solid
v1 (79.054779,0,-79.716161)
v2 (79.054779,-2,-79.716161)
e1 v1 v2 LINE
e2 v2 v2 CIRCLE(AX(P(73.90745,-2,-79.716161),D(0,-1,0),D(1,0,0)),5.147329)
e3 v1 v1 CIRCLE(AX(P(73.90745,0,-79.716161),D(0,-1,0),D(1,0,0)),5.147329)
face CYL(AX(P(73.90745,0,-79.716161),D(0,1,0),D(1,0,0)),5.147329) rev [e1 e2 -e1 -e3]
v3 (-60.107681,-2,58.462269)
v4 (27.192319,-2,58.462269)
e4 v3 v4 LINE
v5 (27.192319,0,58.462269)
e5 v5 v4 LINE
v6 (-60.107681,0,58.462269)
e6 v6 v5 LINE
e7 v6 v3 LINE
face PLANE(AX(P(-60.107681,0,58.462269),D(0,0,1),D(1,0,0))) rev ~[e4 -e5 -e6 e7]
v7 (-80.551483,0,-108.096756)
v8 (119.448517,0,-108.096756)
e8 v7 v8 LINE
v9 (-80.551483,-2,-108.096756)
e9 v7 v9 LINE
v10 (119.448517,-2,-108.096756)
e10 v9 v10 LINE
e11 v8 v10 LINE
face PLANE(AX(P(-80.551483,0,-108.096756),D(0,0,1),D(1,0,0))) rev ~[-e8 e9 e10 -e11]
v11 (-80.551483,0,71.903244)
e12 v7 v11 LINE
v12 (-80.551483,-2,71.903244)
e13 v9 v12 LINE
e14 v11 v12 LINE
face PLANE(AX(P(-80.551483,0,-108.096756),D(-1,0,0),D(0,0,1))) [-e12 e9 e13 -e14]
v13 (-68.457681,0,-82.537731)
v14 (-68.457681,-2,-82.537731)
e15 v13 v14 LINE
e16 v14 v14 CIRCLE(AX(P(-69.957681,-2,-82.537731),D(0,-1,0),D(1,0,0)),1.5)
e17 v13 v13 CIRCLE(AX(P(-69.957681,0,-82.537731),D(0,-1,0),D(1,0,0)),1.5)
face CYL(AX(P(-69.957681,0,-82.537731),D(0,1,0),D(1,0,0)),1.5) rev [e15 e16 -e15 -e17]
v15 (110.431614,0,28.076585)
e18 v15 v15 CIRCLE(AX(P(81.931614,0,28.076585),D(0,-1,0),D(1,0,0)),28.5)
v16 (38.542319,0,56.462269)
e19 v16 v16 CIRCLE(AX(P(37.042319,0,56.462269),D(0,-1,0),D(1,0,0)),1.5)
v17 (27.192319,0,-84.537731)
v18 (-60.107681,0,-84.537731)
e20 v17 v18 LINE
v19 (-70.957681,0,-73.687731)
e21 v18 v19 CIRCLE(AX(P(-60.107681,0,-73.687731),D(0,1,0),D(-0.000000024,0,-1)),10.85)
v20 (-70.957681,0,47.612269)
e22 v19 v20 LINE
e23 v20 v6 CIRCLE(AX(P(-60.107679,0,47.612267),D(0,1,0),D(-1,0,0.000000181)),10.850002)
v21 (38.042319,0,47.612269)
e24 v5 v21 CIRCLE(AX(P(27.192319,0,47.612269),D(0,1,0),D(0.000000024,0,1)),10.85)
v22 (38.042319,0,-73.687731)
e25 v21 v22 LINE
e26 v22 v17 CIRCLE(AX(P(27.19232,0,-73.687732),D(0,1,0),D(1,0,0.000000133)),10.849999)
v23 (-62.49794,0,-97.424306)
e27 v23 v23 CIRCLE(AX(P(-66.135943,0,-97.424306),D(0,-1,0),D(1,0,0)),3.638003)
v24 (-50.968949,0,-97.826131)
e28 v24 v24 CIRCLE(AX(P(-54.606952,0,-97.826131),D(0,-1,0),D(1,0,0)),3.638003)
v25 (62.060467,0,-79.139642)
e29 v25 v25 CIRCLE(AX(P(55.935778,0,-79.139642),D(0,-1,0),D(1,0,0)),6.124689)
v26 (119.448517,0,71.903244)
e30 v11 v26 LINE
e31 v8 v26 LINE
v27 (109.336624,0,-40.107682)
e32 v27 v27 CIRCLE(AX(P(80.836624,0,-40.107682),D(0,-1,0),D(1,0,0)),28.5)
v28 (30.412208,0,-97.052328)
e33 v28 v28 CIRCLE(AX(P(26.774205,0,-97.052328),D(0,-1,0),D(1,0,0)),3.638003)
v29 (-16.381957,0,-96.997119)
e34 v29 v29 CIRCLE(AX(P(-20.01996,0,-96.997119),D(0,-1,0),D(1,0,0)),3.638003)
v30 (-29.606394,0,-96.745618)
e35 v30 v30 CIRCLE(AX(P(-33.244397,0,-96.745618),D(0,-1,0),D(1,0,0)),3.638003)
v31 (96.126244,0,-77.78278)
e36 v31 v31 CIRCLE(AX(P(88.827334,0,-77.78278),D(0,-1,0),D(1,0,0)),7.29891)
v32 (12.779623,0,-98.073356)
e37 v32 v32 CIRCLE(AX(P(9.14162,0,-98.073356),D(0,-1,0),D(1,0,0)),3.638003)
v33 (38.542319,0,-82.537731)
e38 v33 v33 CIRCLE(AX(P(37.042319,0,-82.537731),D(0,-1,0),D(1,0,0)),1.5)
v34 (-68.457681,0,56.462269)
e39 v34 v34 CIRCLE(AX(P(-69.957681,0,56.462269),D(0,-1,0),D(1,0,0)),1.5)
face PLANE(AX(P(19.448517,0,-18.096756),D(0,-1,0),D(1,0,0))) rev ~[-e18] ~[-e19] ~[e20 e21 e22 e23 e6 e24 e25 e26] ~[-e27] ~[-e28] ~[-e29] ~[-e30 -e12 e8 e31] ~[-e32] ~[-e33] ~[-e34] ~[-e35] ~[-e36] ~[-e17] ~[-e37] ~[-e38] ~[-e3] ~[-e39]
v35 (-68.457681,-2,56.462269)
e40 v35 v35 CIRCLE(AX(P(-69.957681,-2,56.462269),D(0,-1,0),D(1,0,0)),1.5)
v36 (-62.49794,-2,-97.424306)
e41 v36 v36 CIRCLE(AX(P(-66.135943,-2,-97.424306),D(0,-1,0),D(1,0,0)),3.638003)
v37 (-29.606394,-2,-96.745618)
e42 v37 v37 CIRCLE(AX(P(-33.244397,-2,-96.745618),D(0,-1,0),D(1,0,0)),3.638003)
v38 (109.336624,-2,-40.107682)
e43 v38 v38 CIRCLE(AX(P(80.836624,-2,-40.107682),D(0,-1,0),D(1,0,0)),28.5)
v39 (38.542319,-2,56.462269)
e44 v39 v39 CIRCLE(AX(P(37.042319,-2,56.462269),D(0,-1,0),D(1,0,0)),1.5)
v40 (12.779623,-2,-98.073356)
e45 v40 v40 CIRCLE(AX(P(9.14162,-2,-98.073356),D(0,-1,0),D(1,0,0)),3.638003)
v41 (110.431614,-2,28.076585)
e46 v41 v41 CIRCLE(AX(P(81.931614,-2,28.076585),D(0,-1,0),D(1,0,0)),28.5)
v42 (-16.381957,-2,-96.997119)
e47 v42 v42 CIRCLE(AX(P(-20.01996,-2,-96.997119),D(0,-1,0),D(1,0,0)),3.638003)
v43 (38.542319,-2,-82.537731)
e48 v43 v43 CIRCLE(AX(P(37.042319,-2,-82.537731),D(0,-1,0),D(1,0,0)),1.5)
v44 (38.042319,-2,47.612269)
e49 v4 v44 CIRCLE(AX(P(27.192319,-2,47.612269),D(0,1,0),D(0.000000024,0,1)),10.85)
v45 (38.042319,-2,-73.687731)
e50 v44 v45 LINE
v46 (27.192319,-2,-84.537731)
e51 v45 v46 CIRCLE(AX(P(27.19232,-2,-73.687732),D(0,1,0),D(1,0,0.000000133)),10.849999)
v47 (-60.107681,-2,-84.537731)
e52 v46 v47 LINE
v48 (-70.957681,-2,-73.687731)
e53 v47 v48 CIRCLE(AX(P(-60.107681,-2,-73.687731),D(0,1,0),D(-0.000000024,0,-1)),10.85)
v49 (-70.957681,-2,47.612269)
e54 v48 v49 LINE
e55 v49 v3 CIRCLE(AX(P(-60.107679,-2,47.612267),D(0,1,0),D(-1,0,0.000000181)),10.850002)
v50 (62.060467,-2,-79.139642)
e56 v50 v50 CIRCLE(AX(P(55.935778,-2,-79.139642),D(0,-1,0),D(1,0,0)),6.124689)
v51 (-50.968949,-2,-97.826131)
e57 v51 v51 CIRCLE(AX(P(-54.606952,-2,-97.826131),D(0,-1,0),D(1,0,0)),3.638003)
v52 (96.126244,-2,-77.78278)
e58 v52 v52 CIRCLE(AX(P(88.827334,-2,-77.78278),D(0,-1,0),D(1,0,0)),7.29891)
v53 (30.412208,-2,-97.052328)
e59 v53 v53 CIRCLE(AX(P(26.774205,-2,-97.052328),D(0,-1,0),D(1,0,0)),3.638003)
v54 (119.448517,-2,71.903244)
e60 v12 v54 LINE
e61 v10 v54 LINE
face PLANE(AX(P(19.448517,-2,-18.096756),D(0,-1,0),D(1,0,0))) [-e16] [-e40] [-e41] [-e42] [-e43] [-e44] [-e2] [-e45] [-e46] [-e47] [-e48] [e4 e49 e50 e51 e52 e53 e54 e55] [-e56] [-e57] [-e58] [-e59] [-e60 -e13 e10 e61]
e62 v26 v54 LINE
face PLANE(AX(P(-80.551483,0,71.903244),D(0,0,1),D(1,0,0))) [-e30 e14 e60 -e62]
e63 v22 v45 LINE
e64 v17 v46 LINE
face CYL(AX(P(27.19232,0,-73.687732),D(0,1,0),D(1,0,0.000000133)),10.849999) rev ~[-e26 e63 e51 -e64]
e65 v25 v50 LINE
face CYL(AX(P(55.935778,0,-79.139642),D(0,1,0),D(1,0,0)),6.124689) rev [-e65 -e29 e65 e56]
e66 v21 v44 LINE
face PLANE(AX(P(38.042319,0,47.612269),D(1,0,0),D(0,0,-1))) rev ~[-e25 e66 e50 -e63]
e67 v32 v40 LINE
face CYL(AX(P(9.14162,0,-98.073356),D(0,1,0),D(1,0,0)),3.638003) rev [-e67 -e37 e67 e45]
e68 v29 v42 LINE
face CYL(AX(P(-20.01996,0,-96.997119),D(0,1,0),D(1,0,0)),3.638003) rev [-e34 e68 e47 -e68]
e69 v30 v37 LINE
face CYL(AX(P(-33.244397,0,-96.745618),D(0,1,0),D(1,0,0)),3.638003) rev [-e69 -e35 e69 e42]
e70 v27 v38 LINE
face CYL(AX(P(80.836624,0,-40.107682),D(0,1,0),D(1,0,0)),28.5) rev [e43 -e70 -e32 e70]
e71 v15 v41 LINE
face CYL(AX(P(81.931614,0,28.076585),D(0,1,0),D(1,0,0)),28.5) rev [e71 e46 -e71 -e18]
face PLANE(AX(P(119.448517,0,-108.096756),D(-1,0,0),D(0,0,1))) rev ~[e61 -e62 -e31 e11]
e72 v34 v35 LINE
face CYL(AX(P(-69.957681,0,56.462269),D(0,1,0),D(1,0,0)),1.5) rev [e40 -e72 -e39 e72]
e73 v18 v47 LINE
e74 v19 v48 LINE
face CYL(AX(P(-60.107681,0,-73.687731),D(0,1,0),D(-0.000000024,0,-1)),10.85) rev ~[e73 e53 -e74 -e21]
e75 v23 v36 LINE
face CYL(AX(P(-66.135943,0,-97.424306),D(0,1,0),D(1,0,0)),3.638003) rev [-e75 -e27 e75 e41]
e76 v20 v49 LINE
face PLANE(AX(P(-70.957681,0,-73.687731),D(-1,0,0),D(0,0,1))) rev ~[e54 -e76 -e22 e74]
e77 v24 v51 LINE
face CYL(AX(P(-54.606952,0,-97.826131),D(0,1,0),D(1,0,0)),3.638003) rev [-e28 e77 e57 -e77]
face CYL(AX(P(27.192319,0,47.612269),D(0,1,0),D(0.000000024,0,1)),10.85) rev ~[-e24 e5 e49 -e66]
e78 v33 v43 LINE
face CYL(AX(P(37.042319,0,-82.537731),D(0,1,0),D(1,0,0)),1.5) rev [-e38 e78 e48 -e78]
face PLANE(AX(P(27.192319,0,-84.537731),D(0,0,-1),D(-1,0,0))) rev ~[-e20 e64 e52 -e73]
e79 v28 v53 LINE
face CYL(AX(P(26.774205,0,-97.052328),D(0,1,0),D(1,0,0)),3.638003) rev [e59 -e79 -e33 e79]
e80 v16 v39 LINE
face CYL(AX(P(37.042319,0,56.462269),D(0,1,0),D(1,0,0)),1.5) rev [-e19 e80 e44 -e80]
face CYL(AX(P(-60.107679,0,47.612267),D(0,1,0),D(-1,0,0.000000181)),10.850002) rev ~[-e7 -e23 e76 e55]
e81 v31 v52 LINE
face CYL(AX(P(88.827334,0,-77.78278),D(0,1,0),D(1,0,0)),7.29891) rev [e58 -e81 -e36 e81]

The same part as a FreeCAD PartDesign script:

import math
import FreeCAD as App
import Part
import Sketcher

V = App.Vector
Q = App.Units.Quantity


def add_polygon(sketch, points):
    """Adds a closed chain of lines whose ends are joined by coincident constraints."""
    first, n = sketch.GeometryCount, len(points)
    for a, b in zip(points, points[1:] + points[:1]):
        sketch.addGeometry(Part.LineSegment(App.Vector(*a, 0), App.Vector(*b, 0)), False)
    for i in range(n):
        sketch.addConstraint(Sketcher.Constraint("Coincident", first + i, 2, first + (i + 1) % n, 1))

doc = App.newDocument("Part")
body = doc.addObject("PartDesign::Body", "Body")

# Sketch on XZ plane
sketch1 = doc.addObject("Sketcher::SketchObject", "Sketch")
body.addObject(sketch1)
sketch1.AttachmentSupport = (doc.XZ_Plane, [""])
sketch1.MapMode = "FlatFace"
add_polygon(sketch1, [(-80.6, 71.9), (-80.6, -108.1), (119.4, -108.1), (119.4, 71.9)])  # lines 0-3
sketch1.addGeometry(Part.Circle(V(-66.1, -97.4, 0), V(0, 0, 1), 3.6), False)  # 4
sketch1.addGeometry(Part.Circle(V(-54.6, -97.8, 0), V(0, 0, 1), 3.6), False)  # 5
sketch1.addGeometry(Part.Circle(V(-70, -82.5, 0), V(0, 0, 1), 1.5), False)  # 6
sketch1.addGeometry(Part.Circle(V(-33.2, -96.7, 0), V(0, 0, 1), 3.6), False)  # 7
sketch1.addGeometry(Part.Circle(V(-20, -97, 0), V(0, 0, 1), 3.6), False)  # 8
sketch1.addGeometry(Part.Circle(V(9.1, -98.1, 0), V(0, 0, 1), 3.6), False)  # 9
sketch1.addGeometry(Part.Circle(V(26.8, -97.1, 0), V(0, 0, 1), 3.6), False)  # 10
sketch1.addGeometry(Part.Circle(V(37, -82.5, 0), V(0, 0, 1), 1.5), False)  # 11
sketch1.addGeometry(Part.Circle(V(55.9, -79.1, 0), V(0, 0, 1), 6.1), False)  # 12
sketch1.addGeometry(Part.Circle(V(73.9, -79.7, 0), V(0, 0, 1), 5.1), False)  # 13
sketch1.addGeometry(Part.Circle(V(88.8, -77.8, 0), V(0, 0, 1), 7.3), False)  # 14
sketch1.addGeometry(Part.Circle(V(80.8, -40.1, 0), V(0, 0, 1), 28.5), False)  # 15
sketch1.addGeometry(Part.LineSegment(V(-71, -73.7, 0), V(-71, 47.6, 0)), False)  # 16
sketch1.addGeometry(Part.ArcOfCircle(Part.Circle(V(-60.1, 47.6, 0), V(0, 0, 1), 10.9), math.radians(90), math.radians(180)), False)  # 17
sketch1.addGeometry(Part.LineSegment(V(-60.1, 58.5, 0), V(27.2, 58.5, 0)), False)  # 18
sketch1.addGeometry(Part.ArcOfCircle(Part.Circle(V(27.2, 47.6, 0), V(0, 0, 1), 10.9), math.radians(0), math.radians(90)), False)  # 19
sketch1.addGeometry(Part.LineSegment(V(38, 47.6, 0), V(38, -73.7, 0)), False)  # 20
sketch1.addGeometry(Part.ArcOfCircle(Part.Circle(V(27.2, -73.7, 0), V(0, 0, 1), 10.8), math.radians(-90), math.radians(0)), False)  # 21
sketch1.addGeometry(Part.LineSegment(V(27.2, -84.5, 0), V(-60.1, -84.5, 0)), False)  # 22
sketch1.addGeometry(Part.ArcOfCircle(Part.Circle(V(-60.1, -73.7, 0), V(0, 0, 1), 10.9), math.radians(-180), math.radians(-90)), False)  # 23
sketch1.addGeometry(Part.Circle(V(-70, 56.5, 0), V(0, 0, 1), 1.5), False)  # 24
sketch1.addGeometry(Part.Circle(V(37, 56.5, 0), V(0, 0, 1), 1.5), False)  # 25
sketch1.addGeometry(Part.Circle(V(81.9, 28.1, 0), V(0, 0, 1), 28.5), False)  # 26
sketch1.addConstraint(Sketcher.Constraint("Tangent", 16, 2, 17, 2))
sketch1.addConstraint(Sketcher.Constraint("Tangent", 17, 1, 18, 1))
sketch1.addConstraint(Sketcher.Constraint("Tangent", 18, 2, 19, 2))
sketch1.addConstraint(Sketcher.Constraint("Tangent", 19, 1, 20, 1))
sketch1.addConstraint(Sketcher.Constraint("Tangent", 20, 2, 21, 2))
sketch1.addConstraint(Sketcher.Constraint("Tangent", 21, 1, 22, 1))
sketch1.addConstraint(Sketcher.Constraint("Tangent", 22, 2, 23, 2))
sketch1.addConstraint(Sketcher.Constraint("Tangent", 23, 1, 16, 1))
sketch1.addConstraint(Sketcher.Constraint("Vertical", 0))
sketch1.addConstraint(Sketcher.Constraint("Horizontal", 1))
sketch1.addConstraint(Sketcher.Constraint("Vertical", 2))
sketch1.addConstraint(Sketcher.Constraint("Horizontal", 3))
sketch1.addConstraint(Sketcher.Constraint("Vertical", 16))
sketch1.addConstraint(Sketcher.Constraint("Horizontal", 18))
sketch1.addConstraint(Sketcher.Constraint("Vertical", 20))
sketch1.addConstraint(Sketcher.Constraint("Horizontal", 22))
sketch1.addConstraint(Sketcher.Constraint("Equal", 4, 5))
sketch1.addConstraint(Sketcher.Constraint("Equal", 5, 7))
sketch1.addConstraint(Sketcher.Constraint("Equal", 7, 8))
sketch1.addConstraint(Sketcher.Constraint("Equal", 8, 9))
sketch1.addConstraint(Sketcher.Constraint("Equal", 9, 10))
sketch1.addConstraint(Sketcher.Constraint("Equal", 6, 11))
sketch1.addConstraint(Sketcher.Constraint("Equal", 17, 19))
sketch1.addConstraint(Sketcher.Constraint("Equal", 19, 21))
sketch1.addConstraint(Sketcher.Constraint("Equal", 21, 23))
sketch1.addConstraint(Sketcher.Constraint("Equal", 11, 24))
sketch1.addConstraint(Sketcher.Constraint("Equal", 24, 25))
sketch1.addConstraint(Sketcher.Constraint("Equal", 15, 26))
sketch1.addConstraint(Sketcher.Constraint("Horizontal", 6, 3, 11, 3))
sketch1.addConstraint(Sketcher.Constraint("Horizontal", 24, 3, 25, 3))
sketch1.addConstraint(Sketcher.Constraint("Vertical", 6, 3, 24, 3))
sketch1.addConstraint(Sketcher.Constraint("Vertical", 11, 3, 25, 3))
sketch1.addConstraint(Sketcher.Constraint("Diameter", 6, Q("3 mm")))
sketch1.addConstraint(Sketcher.Constraint("Diameter", 15, Q("57 mm")))
sketch1.addConstraint(Sketcher.Constraint("DistanceX", 1, 1, 1, 2, Q("200 mm")))
sketch1.addConstraint(Sketcher.Constraint("DistanceY", 0, 2, 0, 1, Q("180 mm")))
sketch1.addConstraint(Sketcher.Constraint("Radius", 17, Q("10.850002 mm")))
sketch1.addConstraint(Sketcher.Constraint("DistanceX", 18, 1, 18, 2, Q("87.3 mm")))
sketch1.addConstraint(Sketcher.Constraint("DistanceY", 16, 1, 16, 2, Q("121.3 mm")))
sketch1.addConstraint(Sketcher.Constraint("DistanceY", 6, 3, 24, 3, Q("139 mm")))
sketch1.addConstraint(Sketcher.Constraint("DistanceX", 24, 3, 25, 3, Q("107 mm")))
sketch1.addConstraint(Sketcher.Constraint("DistanceX", 16, 2, 24, 3, Q("1 mm")))
sketch1.addConstraint(Sketcher.Constraint("DistanceY", 24, 3, 17, 1, Q("2 mm")))
sketch1.addConstraint(Sketcher.Constraint("Diameter", 14, Q("14.59782 mm")))
sketch1.addConstraint(Sketcher.Constraint("Diameter", 4, Q("7.276006 mm")))
sketch1.addConstraint(Sketcher.Constraint("Diameter", 12, Q("12.249378 mm")))
sketch1.addConstraint(Sketcher.Constraint("Diameter", 13, Q("10.294658 mm")))
sketch1.addConstraint(Sketcher.Constraint("DistanceY", 5, 3, 6, 3, Q("15.2884 mm")))
sketch1.addConstraint(Sketcher.Constraint("DistanceY", 8, 3, 7, 3, Q("0.251501 mm")))
sketch1.addConstraint(Sketcher.Constraint("DistanceX", 6, 3, 9, 3, Q("79.099301 mm")))
sketch1.addConstraint(Sketcher.Constraint("DistanceY", 14, 3, 15, 3, Q("37.675098 mm")))
sketch1.addConstraint(Sketcher.Constraint("DistanceX", 19, 3, 2, 2, Q("92.256198 mm")))
sketch1.addConstraint(Sketcher.Constraint("DistanceY", 5, 3, -1, 1, Q("97.826131 mm")))
sketch1.addConstraint(Sketcher.Constraint("DistanceX", 6, 3, -1, 1, Q("69.957681 mm")))
sketch1.addConstraint(Sketcher.Constraint("DistanceX", 8, 3, -1, 1, Q("20.01996 mm")))
sketch1.addConstraint(Sketcher.Constraint("DistanceY", 8, 3, -1, 1, Q("96.997119 mm")))
sketch1.addConstraint(Sketcher.Constraint("DistanceY", 10, 3, -1, 1, Q("97.052328 mm")))
sketch1.addConstraint(Sketcher.Constraint("DistanceY", 12, 3, -1, 1, Q("79.139642 mm")))
sketch1.addConstraint(Sketcher.Constraint("DistanceX", -1, 1, 13, 3, Q("73.90745 mm")))
sketch1.addConstraint(Sketcher.Constraint("DistanceY", 13, 3, -1, 1, Q("79.716161 mm")))
sketch1.addConstraint(Sketcher.Constraint("DistanceY", 14, 3, -1, 1, Q("77.78278 mm")))
sketch1.addConstraint(Sketcher.Constraint("DistanceX", 4, 3, 5, 3, Q("11.528991 mm")))
sketch1.addConstraint(Sketcher.Constraint("DistanceX", 6, 3, 5, 3, Q("15.350729 mm")))
sketch1.addConstraint(Sketcher.Constraint("DistanceY", 4, 3, 7, 3, Q("0.678688 mm")))
sketch1.addConstraint(Sketcher.Constraint("DistanceY", 9, 3, 7, 3, Q("1.327738 mm")))
sketch1.addConstraint(Sketcher.Constraint("DistanceX", 11, 3, 12, 3, Q("18.893459 mm")))
sketch1.addConstraint(Sketcher.Constraint("DistanceX", 10, 3, 14, 3, Q("62.053129 mm")))
sketch1.addConstraint(Sketcher.Constraint("DistanceX", 15, 3, 14, 3, Q("7.99071 mm")))
sketch1.addConstraint(Sketcher.Constraint("DistanceX", 15, 3, 26, 3, Q("1.09499 mm")))
sketch1.addConstraint(Sketcher.Constraint("DistanceY", 0, 2, 4, 3, Q("10.67245 mm")))
sketch1.addConstraint(Sketcher.Constraint("DistanceY", 26, 3, 2, 2, Q("43.826659 mm")))
sketch1.addConstraint(Sketcher.Constraint("DistanceX", 7, 3, -1, 1, Q("33.244397 mm")))
sketch1.addConstraint(Sketcher.Constraint("DistanceX", -1, 1, 10, 3, Q("26.774205 mm")))
pad1 = doc.addObject("PartDesign::Pad", "Pad")
body.addObject(pad1)
pad1.Profile = sketch1
pad1.Length = 2

doc.recompute()
